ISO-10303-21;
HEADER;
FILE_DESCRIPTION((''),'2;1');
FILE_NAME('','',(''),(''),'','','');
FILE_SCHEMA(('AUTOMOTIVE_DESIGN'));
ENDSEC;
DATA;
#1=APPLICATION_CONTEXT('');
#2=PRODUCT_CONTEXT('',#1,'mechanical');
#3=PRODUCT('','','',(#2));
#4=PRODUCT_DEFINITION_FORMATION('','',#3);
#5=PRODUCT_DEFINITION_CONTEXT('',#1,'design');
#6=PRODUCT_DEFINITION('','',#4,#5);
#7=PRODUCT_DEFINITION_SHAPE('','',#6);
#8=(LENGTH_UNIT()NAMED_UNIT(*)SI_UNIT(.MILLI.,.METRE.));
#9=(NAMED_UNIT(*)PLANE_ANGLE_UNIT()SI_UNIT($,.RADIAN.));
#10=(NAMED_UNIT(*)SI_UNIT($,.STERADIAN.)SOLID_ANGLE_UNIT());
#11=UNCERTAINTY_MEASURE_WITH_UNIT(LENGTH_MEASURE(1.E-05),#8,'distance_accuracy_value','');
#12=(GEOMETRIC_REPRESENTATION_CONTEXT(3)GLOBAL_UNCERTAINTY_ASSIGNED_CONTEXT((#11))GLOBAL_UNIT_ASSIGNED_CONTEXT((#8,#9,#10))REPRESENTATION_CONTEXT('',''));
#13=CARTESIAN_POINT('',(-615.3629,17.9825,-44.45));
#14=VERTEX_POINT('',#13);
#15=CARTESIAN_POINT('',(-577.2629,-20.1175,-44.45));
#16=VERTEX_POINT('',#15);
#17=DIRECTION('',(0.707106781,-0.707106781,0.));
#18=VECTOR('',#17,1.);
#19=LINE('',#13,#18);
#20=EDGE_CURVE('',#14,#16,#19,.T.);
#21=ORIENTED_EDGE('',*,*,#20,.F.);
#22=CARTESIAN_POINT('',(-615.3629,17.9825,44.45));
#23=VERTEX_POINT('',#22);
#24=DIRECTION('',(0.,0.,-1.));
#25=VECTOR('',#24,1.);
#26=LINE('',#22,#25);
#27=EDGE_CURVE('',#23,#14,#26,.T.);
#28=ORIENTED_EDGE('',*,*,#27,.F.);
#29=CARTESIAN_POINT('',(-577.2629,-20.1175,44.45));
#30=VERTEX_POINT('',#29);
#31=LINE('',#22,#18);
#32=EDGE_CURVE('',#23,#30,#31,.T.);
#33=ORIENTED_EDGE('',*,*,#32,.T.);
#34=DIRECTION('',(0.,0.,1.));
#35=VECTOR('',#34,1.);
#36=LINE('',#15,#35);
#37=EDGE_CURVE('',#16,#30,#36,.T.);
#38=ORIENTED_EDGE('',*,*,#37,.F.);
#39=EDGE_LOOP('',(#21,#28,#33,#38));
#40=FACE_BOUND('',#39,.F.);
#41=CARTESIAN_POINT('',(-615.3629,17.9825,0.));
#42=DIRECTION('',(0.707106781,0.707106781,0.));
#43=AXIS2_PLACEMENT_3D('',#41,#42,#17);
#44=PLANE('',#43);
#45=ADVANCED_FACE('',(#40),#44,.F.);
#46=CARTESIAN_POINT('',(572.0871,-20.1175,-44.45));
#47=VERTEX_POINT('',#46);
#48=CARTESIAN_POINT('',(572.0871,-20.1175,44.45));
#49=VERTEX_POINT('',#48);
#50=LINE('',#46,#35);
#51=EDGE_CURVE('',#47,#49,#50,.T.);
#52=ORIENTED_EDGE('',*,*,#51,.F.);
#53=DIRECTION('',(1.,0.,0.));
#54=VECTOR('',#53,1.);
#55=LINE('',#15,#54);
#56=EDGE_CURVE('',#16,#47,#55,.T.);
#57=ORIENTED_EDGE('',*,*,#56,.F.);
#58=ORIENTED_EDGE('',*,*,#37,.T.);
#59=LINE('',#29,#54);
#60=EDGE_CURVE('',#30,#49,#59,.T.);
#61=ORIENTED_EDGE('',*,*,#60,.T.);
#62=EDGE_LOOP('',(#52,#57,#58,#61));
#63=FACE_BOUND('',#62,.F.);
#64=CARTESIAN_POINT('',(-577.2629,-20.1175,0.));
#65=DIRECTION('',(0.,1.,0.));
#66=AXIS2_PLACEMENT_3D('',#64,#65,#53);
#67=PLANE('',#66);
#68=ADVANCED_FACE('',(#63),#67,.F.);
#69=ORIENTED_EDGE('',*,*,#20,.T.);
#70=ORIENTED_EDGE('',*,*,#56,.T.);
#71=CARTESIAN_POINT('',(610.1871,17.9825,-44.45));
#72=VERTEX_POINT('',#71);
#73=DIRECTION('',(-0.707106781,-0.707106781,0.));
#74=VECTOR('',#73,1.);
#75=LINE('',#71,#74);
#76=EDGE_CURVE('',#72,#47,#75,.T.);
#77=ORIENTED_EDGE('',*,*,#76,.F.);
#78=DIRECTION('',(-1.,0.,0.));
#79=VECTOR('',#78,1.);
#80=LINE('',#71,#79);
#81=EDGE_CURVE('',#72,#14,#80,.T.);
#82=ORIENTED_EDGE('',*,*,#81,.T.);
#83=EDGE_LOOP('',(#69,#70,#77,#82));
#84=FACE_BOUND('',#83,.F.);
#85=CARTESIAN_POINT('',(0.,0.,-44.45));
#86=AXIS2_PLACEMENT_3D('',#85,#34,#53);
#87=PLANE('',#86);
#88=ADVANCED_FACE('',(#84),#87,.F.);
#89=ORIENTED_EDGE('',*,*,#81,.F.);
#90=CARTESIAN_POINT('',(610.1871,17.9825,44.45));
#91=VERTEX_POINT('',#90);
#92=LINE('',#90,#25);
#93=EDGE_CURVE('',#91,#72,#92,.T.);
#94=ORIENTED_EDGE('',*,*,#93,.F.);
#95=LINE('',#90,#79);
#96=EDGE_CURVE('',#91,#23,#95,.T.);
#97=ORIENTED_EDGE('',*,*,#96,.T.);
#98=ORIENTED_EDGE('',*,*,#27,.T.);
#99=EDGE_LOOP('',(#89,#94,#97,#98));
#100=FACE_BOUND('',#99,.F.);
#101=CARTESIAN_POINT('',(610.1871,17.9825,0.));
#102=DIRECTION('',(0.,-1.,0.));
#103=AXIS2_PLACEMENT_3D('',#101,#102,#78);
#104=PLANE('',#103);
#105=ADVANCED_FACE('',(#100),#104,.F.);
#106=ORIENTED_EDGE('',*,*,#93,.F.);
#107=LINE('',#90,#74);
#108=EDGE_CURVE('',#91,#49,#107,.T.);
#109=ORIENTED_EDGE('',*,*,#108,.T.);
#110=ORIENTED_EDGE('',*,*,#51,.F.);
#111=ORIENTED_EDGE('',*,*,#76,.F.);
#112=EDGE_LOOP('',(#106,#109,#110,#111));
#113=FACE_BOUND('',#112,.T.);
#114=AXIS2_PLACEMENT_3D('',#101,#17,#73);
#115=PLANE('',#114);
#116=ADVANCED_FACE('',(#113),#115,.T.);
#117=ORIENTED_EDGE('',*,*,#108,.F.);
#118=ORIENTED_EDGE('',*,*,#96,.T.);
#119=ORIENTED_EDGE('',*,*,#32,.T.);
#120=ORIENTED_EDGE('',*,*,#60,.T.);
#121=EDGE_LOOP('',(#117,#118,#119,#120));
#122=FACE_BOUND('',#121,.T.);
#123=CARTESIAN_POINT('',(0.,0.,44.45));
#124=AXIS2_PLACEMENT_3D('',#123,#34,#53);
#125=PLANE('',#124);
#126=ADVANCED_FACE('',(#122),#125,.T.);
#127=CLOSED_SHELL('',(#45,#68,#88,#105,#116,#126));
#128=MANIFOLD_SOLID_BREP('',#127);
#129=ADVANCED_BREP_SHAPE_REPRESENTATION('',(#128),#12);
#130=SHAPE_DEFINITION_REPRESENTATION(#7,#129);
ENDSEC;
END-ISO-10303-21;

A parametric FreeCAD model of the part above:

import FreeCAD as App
import Part
import Sketcher

V = App.Vector
Q = App.Units.Quantity


def add_polygon(sketch, points):
    """Adds a closed chain of lines whose ends are joined by coincident constraints."""
    first, n = sketch.GeometryCount, len(points)
    for a, b in zip(points, points[1:] + points[:1]):
        sketch.addGeometry(Part.LineSegment(App.Vector(*a, 0), App.Vector(*b, 0)), False)
    for i in range(n):
        sketch.addConstraint(Sketcher.Constraint("Coincident", first + i, 2, first + (i + 1) % n, 1))

doc = App.newDocument("Part")
params = doc.addObject("Spreadsheet::Sheet", "Params")
for row, (alias, value) in enumerate([
    ("sketch1_width", "48.25 in"),
    ("pad1_length", "3.5 in"),
], start=1):
    params.set(f"A{row}", alias)
    params.set(f"B{row}", "=" + value)
    params.setAlias(f"B{row}", alias)

body = doc.addObject("PartDesign::Body", "Body")

# Sketch on XY plane
sketch1 = body.newObject("Sketcher::SketchObject", "Sketch")
sketch1.AttachmentSupport = (doc.getObject("XY_Plane"), [""])
sketch1.MapMode = "FlatFace"
add_polygon(sketch1, [(-615, 18), (-577, -20), (572, -20), (610, 18)])  # lines 0-3
sketch1.addConstraint(Sketcher.Constraint("Horizontal", 1))
sketch1.addConstraint(Sketcher.Constraint("Horizontal", 3))
sketch1.addConstraint(Sketcher.Constraint("Perpendicular", 0, 2))
sketch1.addConstraint(Sketcher.Constraint("Equal", 0, 2))
sketch1.addConstraint(Sketcher.Constraint("DistanceX", 3, 2, 3, 1, Q("48.25 in")))
sketch1.addConstraint(Sketcher.Constraint("DistanceX", 1, 2, 2, 2, Q("1.5 in")))
sketch1.addConstraint(Sketcher.Constraint("DistanceX", 0, 2, -1, 1, Q("22.7268898 in")))
sketch1.addConstraint(Sketcher.Constraint("DistanceY", 0, 2, -1, 1, Q("20.1175 mm")))
sketch1.setExpression("Constraints[8]", "Params.sketch1_width")
pad1 = body.newObject("PartDesign::Pad", "Pad")
pad1.Profile = sketch1
pad1.setExpression("Length", "Params.pad1_length")
pad1.Midplane = True

doc.recompute()
